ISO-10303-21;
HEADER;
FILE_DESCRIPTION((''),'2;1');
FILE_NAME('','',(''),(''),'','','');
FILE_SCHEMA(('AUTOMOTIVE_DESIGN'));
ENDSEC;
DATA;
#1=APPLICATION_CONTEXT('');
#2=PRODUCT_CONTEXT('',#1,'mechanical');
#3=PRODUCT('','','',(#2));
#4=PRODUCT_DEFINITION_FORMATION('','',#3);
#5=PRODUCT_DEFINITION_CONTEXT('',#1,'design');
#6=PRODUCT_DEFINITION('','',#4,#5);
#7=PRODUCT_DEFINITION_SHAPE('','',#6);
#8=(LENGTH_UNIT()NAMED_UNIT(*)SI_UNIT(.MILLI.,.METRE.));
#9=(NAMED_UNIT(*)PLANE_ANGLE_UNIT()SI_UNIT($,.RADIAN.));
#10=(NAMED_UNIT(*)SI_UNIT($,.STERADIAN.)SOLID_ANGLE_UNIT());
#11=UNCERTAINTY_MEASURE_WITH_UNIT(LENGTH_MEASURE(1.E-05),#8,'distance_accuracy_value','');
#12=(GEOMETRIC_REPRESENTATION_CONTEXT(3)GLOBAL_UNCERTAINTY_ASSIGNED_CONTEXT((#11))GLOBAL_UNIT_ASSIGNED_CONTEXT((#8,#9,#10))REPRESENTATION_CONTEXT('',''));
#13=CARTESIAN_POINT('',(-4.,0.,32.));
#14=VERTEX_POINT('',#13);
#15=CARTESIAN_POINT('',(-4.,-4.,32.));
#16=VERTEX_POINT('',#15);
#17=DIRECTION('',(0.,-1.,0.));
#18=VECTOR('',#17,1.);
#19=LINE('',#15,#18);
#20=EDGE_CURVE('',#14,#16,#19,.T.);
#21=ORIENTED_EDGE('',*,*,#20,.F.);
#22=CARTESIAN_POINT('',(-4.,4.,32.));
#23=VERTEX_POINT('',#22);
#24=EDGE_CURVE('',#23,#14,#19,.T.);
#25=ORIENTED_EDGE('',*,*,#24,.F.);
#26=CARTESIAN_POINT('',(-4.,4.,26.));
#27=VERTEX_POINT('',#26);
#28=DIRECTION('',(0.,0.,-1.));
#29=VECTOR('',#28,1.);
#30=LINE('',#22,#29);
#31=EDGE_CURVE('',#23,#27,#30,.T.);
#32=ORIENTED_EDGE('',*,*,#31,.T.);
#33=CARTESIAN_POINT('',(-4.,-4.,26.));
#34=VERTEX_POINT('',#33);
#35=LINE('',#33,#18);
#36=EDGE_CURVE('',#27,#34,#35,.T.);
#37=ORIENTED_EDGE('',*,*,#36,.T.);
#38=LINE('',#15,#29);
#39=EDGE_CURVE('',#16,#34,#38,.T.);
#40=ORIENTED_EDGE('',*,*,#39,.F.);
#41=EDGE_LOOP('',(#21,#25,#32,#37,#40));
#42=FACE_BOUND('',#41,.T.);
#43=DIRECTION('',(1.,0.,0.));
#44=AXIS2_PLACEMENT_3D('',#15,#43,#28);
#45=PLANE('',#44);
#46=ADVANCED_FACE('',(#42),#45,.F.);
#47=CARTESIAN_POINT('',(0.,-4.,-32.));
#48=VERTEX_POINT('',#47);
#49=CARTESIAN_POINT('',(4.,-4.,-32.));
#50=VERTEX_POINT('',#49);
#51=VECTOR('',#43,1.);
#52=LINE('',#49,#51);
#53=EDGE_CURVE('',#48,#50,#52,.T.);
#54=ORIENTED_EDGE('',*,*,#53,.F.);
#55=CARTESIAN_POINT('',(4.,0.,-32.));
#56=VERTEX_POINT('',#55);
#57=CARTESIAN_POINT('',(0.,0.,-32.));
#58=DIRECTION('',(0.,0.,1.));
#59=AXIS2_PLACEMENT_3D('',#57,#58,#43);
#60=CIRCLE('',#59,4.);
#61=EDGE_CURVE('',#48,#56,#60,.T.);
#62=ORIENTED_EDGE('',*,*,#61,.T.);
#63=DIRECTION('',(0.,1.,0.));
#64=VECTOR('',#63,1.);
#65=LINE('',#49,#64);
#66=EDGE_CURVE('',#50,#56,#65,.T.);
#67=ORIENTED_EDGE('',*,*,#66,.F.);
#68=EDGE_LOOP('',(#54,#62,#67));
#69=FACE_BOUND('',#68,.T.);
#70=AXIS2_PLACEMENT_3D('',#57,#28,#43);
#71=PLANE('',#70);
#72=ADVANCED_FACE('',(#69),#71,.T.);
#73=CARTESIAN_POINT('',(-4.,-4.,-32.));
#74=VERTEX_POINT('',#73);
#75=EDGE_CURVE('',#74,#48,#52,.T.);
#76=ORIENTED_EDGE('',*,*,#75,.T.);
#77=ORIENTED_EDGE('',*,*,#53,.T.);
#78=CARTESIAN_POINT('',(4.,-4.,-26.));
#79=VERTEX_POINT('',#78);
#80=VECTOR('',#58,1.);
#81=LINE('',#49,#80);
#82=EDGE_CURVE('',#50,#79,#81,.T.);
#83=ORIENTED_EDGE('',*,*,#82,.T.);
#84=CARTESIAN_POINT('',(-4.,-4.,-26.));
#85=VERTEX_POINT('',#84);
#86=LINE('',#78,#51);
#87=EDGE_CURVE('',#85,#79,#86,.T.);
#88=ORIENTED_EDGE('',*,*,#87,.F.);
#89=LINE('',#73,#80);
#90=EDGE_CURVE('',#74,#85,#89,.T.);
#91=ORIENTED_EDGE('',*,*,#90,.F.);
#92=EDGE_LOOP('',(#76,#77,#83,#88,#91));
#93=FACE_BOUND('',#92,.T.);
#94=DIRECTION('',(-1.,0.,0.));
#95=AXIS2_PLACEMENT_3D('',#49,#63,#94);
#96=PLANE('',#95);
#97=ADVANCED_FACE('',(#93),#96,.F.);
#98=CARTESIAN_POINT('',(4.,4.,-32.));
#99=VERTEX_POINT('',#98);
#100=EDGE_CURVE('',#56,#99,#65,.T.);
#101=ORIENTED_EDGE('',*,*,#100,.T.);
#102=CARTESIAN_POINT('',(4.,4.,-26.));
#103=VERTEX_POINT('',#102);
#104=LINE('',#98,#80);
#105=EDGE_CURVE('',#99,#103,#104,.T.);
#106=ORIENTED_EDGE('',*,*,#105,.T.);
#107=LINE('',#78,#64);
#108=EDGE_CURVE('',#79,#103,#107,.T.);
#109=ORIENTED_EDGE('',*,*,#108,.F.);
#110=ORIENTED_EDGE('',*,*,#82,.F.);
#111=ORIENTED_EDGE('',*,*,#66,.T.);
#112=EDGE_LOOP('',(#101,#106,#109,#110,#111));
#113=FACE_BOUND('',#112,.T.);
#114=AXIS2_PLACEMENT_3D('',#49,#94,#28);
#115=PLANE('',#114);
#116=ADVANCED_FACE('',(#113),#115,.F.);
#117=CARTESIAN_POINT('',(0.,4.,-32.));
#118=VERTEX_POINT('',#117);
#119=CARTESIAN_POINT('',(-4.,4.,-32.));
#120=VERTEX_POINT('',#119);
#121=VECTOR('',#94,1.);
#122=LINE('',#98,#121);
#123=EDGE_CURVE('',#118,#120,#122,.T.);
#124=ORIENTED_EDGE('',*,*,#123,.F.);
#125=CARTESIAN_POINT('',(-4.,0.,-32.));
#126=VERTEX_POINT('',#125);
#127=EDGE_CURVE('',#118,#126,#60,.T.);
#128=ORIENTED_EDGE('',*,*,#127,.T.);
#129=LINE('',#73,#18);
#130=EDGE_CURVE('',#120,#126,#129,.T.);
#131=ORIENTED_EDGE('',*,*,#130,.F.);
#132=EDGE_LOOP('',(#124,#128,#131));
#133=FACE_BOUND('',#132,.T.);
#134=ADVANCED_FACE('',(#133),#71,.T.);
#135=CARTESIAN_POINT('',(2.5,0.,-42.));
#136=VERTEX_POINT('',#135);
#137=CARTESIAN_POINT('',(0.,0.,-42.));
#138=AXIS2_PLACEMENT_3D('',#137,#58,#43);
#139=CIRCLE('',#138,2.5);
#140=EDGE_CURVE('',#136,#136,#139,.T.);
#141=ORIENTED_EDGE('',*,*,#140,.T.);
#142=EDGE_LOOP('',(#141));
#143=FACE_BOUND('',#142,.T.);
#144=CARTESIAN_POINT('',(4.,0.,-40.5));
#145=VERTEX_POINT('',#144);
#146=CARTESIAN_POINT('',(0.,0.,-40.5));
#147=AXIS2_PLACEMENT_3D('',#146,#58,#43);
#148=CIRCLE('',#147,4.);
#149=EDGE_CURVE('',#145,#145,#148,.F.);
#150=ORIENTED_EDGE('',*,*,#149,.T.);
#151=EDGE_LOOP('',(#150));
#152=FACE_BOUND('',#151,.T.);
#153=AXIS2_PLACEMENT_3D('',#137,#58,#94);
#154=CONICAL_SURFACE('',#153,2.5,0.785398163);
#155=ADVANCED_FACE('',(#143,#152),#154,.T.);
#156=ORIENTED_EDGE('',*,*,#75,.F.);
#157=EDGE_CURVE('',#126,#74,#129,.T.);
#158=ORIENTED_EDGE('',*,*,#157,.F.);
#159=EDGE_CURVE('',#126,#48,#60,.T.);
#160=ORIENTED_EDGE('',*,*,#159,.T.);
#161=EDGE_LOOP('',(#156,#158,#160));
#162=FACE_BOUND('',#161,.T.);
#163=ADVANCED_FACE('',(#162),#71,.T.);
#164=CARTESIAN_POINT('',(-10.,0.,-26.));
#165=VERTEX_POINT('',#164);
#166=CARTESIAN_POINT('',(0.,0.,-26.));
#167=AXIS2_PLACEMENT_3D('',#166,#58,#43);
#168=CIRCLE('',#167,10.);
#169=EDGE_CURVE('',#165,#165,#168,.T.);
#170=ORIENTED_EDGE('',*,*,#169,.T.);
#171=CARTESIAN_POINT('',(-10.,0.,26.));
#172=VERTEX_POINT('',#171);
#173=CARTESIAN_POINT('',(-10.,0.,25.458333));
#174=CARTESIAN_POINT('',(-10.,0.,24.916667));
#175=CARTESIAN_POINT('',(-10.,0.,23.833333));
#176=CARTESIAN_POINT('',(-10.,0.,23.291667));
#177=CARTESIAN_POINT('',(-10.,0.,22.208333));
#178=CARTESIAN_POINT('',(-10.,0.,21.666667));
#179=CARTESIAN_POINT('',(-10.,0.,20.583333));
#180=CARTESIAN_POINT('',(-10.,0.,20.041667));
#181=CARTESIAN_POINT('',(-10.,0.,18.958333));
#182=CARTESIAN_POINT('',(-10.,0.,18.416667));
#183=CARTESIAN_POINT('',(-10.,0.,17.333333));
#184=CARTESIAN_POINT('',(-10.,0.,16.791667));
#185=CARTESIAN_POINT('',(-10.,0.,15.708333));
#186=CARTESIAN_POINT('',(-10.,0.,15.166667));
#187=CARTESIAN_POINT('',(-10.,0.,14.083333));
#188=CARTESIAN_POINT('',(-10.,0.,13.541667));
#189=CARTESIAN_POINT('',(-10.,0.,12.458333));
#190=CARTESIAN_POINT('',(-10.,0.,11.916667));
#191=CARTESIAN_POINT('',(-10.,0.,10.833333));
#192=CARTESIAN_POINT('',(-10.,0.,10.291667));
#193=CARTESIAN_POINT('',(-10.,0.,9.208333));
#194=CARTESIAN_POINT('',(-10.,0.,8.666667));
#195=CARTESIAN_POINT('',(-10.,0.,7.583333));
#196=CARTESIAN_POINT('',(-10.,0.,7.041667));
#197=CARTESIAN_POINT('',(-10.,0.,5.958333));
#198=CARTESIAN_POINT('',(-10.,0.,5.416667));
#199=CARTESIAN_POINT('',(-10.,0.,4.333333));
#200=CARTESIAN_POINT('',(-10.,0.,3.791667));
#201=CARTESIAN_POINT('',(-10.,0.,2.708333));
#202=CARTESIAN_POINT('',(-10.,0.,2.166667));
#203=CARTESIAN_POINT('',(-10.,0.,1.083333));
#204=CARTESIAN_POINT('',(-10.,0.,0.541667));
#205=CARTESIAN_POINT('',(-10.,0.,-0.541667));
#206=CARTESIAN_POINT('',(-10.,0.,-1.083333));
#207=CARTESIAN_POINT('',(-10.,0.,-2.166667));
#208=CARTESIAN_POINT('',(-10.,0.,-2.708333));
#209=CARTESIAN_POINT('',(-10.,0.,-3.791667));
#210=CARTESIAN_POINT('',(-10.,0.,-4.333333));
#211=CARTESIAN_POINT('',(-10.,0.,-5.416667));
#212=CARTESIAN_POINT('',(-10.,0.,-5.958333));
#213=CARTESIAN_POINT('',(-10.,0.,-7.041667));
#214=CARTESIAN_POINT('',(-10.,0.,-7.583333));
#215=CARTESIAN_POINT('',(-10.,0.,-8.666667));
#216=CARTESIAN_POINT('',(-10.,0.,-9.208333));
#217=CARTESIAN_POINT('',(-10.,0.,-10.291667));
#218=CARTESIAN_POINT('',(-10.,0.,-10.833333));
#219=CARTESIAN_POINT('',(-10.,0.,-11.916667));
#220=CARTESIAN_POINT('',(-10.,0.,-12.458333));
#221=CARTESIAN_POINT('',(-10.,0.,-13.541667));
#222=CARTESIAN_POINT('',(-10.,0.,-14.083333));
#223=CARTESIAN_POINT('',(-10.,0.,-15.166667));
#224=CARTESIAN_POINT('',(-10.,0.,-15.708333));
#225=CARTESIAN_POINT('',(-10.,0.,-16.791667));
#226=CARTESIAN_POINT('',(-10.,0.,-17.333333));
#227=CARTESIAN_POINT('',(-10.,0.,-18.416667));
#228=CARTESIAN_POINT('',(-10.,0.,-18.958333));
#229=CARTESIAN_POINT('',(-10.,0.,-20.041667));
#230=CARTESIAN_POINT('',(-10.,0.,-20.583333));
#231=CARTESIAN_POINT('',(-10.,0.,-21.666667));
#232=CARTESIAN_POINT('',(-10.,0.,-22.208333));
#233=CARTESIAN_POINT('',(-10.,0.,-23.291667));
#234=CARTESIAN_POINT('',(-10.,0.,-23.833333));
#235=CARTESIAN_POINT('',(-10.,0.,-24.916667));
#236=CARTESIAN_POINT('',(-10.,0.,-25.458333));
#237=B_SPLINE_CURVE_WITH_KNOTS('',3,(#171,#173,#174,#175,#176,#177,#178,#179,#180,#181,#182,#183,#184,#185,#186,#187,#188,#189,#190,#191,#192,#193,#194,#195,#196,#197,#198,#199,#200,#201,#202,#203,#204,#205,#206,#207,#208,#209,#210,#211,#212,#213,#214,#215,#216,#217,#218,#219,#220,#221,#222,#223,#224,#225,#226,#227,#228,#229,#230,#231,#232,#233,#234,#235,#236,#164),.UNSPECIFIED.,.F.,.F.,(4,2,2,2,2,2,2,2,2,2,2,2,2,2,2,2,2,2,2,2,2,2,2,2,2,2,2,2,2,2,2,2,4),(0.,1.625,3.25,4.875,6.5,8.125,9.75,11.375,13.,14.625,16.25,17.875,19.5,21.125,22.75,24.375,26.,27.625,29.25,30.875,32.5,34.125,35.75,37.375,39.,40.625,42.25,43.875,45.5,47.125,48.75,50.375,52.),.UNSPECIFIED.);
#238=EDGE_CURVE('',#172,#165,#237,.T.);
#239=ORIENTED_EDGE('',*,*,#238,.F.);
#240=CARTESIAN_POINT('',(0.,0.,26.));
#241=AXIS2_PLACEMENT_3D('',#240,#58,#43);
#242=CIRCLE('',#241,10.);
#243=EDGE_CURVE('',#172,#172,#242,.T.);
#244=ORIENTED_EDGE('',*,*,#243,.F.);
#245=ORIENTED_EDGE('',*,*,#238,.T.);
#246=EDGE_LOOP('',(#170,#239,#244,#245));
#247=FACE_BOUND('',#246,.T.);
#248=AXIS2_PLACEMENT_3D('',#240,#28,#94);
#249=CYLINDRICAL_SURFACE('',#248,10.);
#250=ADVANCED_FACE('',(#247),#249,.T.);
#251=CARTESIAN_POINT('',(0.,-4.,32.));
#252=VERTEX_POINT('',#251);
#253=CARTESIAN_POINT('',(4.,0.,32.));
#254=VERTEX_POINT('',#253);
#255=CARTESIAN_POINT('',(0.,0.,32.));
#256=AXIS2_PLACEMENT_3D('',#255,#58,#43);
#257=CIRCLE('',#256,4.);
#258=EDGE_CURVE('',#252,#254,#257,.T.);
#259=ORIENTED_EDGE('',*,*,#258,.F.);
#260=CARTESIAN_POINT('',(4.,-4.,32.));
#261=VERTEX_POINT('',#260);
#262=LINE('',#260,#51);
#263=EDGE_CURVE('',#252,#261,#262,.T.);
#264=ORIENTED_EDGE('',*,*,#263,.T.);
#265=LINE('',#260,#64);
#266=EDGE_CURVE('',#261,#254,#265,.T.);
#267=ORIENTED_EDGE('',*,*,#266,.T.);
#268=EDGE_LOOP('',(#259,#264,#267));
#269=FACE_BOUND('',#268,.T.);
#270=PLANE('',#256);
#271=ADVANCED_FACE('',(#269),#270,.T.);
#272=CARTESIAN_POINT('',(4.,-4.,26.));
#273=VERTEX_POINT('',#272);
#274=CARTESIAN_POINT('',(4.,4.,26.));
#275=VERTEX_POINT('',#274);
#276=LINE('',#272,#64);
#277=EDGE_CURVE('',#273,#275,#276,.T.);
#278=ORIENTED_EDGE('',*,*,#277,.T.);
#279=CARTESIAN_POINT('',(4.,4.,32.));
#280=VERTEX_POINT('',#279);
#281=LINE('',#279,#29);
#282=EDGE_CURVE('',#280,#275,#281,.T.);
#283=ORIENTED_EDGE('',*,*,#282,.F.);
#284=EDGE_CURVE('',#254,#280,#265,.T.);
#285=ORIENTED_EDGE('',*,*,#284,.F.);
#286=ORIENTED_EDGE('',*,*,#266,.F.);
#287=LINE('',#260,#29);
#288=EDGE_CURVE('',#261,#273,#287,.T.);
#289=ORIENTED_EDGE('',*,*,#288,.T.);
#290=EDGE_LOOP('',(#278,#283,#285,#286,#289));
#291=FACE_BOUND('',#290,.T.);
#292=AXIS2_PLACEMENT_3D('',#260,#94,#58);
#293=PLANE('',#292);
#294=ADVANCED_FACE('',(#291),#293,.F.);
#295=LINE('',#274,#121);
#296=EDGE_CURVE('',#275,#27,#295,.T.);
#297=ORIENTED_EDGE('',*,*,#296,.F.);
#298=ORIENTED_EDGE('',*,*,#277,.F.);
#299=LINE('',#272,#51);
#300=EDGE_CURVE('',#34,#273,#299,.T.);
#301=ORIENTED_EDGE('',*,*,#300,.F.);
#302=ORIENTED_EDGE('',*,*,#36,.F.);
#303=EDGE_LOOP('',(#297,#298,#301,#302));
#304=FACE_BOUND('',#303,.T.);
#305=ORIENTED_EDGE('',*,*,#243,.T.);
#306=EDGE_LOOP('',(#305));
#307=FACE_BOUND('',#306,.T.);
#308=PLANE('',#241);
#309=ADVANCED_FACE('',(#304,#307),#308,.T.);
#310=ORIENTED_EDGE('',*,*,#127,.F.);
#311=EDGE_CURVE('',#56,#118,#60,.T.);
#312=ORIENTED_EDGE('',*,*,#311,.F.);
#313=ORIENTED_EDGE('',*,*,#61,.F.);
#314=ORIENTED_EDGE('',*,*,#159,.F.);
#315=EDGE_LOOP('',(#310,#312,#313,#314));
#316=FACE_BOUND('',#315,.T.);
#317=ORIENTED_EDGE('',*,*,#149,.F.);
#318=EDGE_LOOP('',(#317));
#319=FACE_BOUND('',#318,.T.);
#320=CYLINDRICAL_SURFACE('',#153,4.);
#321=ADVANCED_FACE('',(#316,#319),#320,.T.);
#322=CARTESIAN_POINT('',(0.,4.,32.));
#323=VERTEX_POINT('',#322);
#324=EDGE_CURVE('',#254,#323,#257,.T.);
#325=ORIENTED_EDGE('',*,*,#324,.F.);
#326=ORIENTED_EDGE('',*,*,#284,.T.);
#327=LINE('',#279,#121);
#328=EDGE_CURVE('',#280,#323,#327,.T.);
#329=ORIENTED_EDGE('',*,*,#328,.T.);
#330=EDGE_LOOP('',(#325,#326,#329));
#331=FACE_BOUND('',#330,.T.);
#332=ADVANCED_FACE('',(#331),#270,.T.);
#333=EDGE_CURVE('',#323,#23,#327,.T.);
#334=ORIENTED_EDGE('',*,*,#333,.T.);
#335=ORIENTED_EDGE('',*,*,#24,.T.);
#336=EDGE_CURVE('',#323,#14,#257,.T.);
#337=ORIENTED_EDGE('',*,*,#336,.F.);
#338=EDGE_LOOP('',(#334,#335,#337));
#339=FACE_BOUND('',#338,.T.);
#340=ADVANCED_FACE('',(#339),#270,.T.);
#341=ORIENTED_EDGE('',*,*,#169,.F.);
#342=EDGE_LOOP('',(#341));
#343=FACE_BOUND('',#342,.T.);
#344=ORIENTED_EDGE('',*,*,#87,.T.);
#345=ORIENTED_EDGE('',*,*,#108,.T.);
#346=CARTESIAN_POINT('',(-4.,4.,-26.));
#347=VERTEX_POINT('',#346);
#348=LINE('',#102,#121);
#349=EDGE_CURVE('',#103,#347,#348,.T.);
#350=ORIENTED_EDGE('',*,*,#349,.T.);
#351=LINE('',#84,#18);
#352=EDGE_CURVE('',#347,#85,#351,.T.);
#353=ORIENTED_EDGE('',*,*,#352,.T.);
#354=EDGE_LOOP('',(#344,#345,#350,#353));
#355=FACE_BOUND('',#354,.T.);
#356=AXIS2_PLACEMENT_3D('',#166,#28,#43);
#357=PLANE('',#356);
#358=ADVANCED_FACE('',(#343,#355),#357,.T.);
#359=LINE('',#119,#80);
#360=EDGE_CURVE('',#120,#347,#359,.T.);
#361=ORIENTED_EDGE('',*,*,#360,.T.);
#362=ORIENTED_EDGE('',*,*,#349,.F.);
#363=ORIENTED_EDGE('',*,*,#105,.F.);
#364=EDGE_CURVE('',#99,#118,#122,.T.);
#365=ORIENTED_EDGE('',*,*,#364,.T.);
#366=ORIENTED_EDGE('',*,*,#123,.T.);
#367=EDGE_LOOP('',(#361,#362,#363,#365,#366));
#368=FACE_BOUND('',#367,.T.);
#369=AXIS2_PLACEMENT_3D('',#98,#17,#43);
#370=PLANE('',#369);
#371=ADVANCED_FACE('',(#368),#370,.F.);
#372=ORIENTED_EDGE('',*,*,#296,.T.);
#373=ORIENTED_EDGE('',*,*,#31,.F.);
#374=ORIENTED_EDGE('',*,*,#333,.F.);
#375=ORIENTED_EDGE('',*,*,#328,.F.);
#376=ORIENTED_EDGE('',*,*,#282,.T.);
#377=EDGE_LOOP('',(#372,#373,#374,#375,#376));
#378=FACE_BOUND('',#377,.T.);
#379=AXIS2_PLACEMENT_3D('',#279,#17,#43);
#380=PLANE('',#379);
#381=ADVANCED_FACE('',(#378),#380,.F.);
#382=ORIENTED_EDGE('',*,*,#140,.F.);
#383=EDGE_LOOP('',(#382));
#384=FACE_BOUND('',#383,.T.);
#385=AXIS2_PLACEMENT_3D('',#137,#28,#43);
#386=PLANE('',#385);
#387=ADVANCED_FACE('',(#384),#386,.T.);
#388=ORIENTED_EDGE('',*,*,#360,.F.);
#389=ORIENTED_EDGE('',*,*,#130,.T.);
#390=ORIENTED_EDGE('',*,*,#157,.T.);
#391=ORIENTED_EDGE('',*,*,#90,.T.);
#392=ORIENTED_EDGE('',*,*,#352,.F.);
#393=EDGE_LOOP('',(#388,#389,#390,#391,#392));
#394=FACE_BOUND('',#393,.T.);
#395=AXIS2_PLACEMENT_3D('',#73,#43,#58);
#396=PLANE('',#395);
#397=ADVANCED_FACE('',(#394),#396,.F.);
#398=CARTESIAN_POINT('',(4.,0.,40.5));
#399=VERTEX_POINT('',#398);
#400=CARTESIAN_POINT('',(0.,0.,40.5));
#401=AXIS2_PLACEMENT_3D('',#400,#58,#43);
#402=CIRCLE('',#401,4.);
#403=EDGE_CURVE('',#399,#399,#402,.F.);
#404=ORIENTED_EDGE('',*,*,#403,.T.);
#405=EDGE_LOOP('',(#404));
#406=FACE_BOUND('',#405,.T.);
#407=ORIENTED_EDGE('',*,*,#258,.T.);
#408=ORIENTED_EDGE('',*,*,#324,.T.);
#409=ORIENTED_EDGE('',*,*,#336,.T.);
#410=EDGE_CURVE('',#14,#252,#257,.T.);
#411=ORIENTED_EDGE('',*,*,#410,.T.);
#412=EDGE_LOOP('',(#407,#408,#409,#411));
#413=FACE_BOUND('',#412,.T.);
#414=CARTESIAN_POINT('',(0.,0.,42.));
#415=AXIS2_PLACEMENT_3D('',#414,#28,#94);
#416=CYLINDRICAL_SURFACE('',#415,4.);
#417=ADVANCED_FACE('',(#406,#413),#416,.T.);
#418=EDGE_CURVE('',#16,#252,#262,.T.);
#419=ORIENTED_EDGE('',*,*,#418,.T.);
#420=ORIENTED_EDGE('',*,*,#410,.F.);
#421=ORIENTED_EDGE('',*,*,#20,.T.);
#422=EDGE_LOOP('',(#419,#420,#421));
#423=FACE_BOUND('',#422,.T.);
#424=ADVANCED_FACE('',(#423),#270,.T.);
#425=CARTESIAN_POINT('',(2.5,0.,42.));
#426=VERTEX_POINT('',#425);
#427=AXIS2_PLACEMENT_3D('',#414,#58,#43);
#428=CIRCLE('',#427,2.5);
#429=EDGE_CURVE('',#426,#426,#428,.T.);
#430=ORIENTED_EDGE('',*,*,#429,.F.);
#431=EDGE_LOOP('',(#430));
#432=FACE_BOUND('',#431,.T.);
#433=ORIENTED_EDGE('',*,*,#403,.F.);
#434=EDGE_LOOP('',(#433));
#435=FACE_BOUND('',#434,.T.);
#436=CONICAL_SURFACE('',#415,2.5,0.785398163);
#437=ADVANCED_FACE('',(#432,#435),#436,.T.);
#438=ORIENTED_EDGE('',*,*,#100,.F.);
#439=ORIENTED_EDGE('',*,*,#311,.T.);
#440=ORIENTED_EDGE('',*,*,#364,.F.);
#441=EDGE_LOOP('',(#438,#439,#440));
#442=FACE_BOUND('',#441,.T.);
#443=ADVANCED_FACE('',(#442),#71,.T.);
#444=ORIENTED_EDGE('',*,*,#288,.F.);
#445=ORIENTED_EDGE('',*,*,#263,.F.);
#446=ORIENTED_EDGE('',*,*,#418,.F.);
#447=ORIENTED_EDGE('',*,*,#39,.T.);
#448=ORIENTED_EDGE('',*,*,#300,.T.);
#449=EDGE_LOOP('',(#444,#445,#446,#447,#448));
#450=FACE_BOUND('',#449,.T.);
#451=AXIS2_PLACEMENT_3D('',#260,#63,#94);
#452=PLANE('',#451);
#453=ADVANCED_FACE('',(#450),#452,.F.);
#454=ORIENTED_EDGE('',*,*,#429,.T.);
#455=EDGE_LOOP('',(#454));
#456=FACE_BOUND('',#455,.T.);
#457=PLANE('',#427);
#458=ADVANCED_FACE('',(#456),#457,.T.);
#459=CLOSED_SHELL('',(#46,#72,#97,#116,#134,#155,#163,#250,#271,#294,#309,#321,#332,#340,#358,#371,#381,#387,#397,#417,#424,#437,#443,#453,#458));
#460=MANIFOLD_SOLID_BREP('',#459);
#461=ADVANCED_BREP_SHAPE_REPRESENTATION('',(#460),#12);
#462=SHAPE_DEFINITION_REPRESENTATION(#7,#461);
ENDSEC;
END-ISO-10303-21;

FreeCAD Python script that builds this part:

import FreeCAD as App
import Part
import Sketcher


def edges_at(feature, points):
    """Names of the edges that pass closest to the given points."""
    edges = feature.Shape.Edges
    near = lambda p: min(range(len(edges)), key=lambda i: edges[i].distToShape(Part.Vertex(*p))[0])
    return sorted({f"Edge{near(p) + 1}" for p in points})


def add_polygon(sketch, points):
    """Adds a closed chain of lines whose ends are joined by coincident constraints."""
    first, n = sketch.GeometryCount, len(points)
    for a, b in zip(points, points[1:] + points[:1]):
        sketch.addGeometry(Part.LineSegment(App.Vector(*a, 0), App.Vector(*b, 0)), False)
    for i in range(n):
        sketch.addConstraint(Sketcher.Constraint("Coincident", first + i, 2, first + (i + 1) % n, 1))

doc = App.newDocument("Part")
body = doc.addObject("PartDesign::Body", "Body")

sketch1 = body.newObject("Sketcher::SketchObject", "Sketch")
sketch1.AttachmentSupport = (doc.getObject("XY_Plane"), [""])
sketch1.MapMode = "FlatFace"
sketch1.addGeometry(Part.Circle(App.Vector(0, 0, 0), App.Vector(0, 0, 1), 10), False)
sketch1.addConstraint(Sketcher.Constraint("Coincident", 0, 3, -1, 1))
sketch1.addConstraint(Sketcher.Constraint("Diameter", 0, 20.0))
pad1 = body.newObject("PartDesign::Pad", "Pad")
pad1.Profile = sketch1
pad1.Length = 26

sketch2 = body.newObject("Sketcher::SketchObject", "Sketch001")
sketch2.AttachmentSupport = (doc.getObject("XY_Plane"), [""])
sketch2.MapMode = "FlatFace"
sketch2.AttachmentOffset = App.Placement(App.Vector(0, 0, 26), App.Rotation())
add_polygon(sketch2, [(-4, 4), (-4, -4), (4, -4), (4, 4)])
sketch2.addConstraint(Sketcher.Constraint("Vertical", 0))
sketch2.addConstraint(Sketcher.Constraint("Horizontal", 1))
sketch2.addConstraint(Sketcher.Constraint("Vertical", 2))
sketch2.addConstraint(Sketcher.Constraint("Horizontal", 3))
sketch2.addConstraint(Sketcher.Constraint("Symmetric", 0, 2, 2, 2, -1, 1))
sketch2.addConstraint(Sketcher.Constraint("Equal", 3, 0))
sketch2.addConstraint(Sketcher.Constraint("DistanceX", 1, 1, 1, 2, 8.0))
pad2 = body.newObject("PartDesign::Pad", "Pad001")
pad2.Profile = sketch2
pad2.Length = 6

sketch3 = body.newObject("Sketcher::SketchObject", "Sketch002")
sketch3.AttachmentSupport = (doc.getObject("XY_Plane"), [""])
sketch3.MapMode = "FlatFace"
sketch3.AttachmentOffset = App.Placement(App.Vector(0, 0, 32), App.Rotation())
sketch3.addGeometry(Part.Circle(App.Vector(0, 0, 0), App.Vector(0, 0, 1), 4), False)
sketch3.addConstraint(Sketcher.Constraint("Coincident", 0, 3, -1, 1))
sketch3.addConstraint(Sketcher.Constraint("Diameter", 0, 8.0))
pad3 = body.newObject("PartDesign::Pad", "Pad002")
pad3.Profile = sketch3
pad3.Length = 10
doc.recompute()

chamfer = body.newObject("PartDesign::Chamfer", "Chamfer")
chamfer.Base = (pad3, edges_at(pad3, [(-4, 0, 42)]))
chamfer.Size = 1.5
body2 = doc.addObject("PartDesign::Body", "Body001")
doc.recompute()

body2.BaseFeature = body
doc.recompute()

mirroring = doc.addObject("Part::Mirroring", "Mirroring")
mirroring.Source = body
mirroring.Base = App.Vector(0, 0, 0)
mirroring.Normal = App.Vector(0, 0, 1)
body3 = doc.addObject("PartDesign::Body", "Body002")
body3.BaseFeature = mirroring
boolean = body2.newObject("PartDesign::Boolean", "Boolean")
boolean.Type = "Fuse"
boolean.addObjects([body3])
doc.recompute()
mirroring.Visibility = False

doc.recompute()
